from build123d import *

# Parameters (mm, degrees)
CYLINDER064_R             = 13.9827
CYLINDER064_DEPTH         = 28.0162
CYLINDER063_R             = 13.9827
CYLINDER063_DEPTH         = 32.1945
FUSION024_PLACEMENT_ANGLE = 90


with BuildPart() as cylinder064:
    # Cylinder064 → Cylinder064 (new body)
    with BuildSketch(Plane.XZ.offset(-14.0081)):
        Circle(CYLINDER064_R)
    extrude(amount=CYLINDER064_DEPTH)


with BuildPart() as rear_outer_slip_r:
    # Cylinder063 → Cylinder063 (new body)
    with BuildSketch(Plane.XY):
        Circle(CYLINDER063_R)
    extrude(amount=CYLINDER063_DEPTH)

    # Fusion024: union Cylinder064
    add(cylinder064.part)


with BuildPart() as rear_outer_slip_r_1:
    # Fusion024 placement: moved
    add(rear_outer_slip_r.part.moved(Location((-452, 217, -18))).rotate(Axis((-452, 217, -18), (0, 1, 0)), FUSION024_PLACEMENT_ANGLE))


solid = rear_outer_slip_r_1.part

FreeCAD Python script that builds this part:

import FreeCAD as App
import Part
import Sketcher
from FreeCAD import Vector
Q = App.Units.Quantity

doc = App.newDocument("Part")
body = doc.addObject("PartDesign::Body", "Body")

# Sketch on XZ plane
sketch1 = doc.addObject("Sketcher::SketchObject", "Sketch")
body.addObject(sketch1)
sketch1.AttachmentSupport = (doc.XZ_Plane, [""])
sketch1.MapMode = "FlatFace"
sketch1.AttachmentOffset = App.Placement(Vector(0, 0, -0.5515 * 25.4), App.Rotation())
sketch1.addGeometry(Part.Circle(Vector(0, 0, 0), Vector(0, 0, 1), 14), False)
sketch1.addConstraint(Sketcher.Constraint("Coincident", 0, 3, -1, 1))
sketch1.addConstraint(Sketcher.Constraint("Diameter", 0, Q("1.101 in")))
pad1 = doc.addObject("PartDesign::Pad", "Pad")
body.addObject(pad1)
pad1.Profile = sketch1
pad1.Length = Q("1.103 in")
body2 = doc.addObject("PartDesign::Body", "Body001")

# Sketch on XY plane
sketch2 = doc.addObject("Sketcher::SketchObject", "Sketch001")
body2.addObject(sketch2)
sketch2.AttachmentSupport = (doc.getObject("XY_Plane001"), [""])
sketch2.MapMode = "FlatFace"
sketch2.addGeometry(Part.Circle(Vector(0, 0, 0), Vector(0, 0, 1), 14), False)
sketch2.addConstraint(Sketcher.Constraint("Coincident", 0, 3, -1, 1))
sketch2.addConstraint(Sketcher.Constraint("Diameter", 0, Q("1.101 in")))
pad2 = doc.addObject("PartDesign::Pad", "Pad001")
body2.addObject(pad2)
pad2.Profile = sketch2
pad2.Length = Q("1.2675 in")
doc.recompute()

boolean = doc.addObject("PartDesign::Boolean", "Boolean")
body2.addObject(boolean)
boolean.Type = "Fuse"
boolean.addObjects([body])
body3 = doc.addObject("PartDesign::Body", "Body002")
doc.recompute()

body2.Placement = App.Placement(Vector(-452, 217, -18), App.Rotation(Vector(0, 1, 0), 90))
boolean2 = doc.addObject("PartDesign::Boolean", "Boolean001")
body3.addObject(boolean2)
boolean2.Type = "Fuse"
boolean2.addObjects([body2])

doc.recompute()
